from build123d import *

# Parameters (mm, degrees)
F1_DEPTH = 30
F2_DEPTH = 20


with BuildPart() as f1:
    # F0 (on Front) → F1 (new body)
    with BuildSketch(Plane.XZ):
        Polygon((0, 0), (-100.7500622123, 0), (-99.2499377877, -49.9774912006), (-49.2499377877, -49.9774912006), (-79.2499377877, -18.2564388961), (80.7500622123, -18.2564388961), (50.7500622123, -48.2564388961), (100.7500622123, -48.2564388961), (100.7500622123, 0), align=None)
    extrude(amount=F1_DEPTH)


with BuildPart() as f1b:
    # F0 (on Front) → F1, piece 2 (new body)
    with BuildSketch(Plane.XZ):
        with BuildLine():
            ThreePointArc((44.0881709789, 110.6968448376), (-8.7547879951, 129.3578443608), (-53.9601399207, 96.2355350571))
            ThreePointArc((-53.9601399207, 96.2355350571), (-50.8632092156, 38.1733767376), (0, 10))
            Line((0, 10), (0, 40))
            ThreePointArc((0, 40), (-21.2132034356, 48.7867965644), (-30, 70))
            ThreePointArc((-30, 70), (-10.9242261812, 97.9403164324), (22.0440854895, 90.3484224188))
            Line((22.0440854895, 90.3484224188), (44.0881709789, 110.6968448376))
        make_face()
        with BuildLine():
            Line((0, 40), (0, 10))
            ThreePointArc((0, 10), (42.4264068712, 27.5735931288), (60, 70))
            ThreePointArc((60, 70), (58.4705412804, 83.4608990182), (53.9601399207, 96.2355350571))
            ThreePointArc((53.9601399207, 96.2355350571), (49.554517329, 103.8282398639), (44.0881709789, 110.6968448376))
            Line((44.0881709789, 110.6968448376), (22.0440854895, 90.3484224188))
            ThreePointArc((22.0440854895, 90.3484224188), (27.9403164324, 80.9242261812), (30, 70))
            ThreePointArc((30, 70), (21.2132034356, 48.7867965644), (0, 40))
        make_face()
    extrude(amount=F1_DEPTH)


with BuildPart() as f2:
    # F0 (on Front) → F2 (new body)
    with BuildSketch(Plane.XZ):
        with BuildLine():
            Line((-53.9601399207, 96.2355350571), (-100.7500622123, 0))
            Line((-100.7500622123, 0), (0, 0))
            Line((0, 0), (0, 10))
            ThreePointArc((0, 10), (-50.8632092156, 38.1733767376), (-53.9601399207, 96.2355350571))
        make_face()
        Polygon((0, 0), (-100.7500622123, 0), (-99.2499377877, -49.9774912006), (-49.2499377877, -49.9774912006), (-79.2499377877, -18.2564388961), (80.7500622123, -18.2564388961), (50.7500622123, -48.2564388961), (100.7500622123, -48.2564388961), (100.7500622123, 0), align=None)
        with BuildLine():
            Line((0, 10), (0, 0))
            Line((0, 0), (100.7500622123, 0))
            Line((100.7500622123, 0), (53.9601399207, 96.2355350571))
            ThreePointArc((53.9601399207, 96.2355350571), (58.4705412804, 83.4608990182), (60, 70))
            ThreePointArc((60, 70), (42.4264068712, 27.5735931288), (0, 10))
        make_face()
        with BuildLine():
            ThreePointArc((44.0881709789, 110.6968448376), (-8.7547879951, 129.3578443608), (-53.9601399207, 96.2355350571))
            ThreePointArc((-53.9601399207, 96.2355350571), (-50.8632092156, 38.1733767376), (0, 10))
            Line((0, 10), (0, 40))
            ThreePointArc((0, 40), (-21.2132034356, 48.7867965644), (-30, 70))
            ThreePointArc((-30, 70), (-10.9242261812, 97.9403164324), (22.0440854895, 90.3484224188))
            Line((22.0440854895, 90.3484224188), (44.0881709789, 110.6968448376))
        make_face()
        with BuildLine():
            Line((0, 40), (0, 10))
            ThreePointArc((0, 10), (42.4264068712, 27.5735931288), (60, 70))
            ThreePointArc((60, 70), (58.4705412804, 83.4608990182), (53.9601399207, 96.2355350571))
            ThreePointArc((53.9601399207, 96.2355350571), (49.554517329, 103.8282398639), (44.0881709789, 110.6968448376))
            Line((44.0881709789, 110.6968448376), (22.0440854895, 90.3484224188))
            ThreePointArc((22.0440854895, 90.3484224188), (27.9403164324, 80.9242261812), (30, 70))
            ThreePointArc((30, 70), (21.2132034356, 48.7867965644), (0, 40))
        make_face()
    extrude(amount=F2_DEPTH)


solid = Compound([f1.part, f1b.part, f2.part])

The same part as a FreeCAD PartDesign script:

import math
import FreeCAD as App
import Part
import Sketcher

V = App.Vector
Q = App.Units.Quantity

doc = App.newDocument("Part")
body = doc.addObject("PartDesign::Body", "Body")

sketch1 = body.newObject("Sketcher::SketchObject", "Sketch")
sketch1.AttachmentSupport = (doc.getObject("XZ_Plane"), [""])
sketch1.MapMode = "FlatFace"
sketch1.addGeometry([
    Part.LineSegment(V(-100.750062, 0, 0), V(-99.249938, -49.977491, 0)),
    Part.LineSegment(V(-99.249938, -49.977491, 0), V(-49.249938, -49.977491, 0)),
    Part.LineSegment(V(-49.249938, -49.977491, 0), V(-79.249938, -18.256439, 0)),
    Part.LineSegment(V(-79.249938, -18.256439, 0), V(80.750062, -18.256439, 0)),
    Part.LineSegment(V(80.750062, -18.256439, 0), V(50.750062, -48.256439, 0)),
    Part.LineSegment(V(50.750062, -48.256439, 0), V(100.750062, -48.256439, 0)),
    Part.LineSegment(V(100.750062, -48.256439, 0), V(100.750062, 0, 0)),
    Part.LineSegment(V(100.750062, 0, 0), V(-100.750062, 0, 0)),
], False)
sketch1.addConstraint([
    Sketcher.Constraint("Coincident", 0, 2, 1, 1),
    Sketcher.Constraint("Coincident", 1, 2, 2, 1),
    Sketcher.Constraint("Coincident", 2, 2, 3, 1),
    Sketcher.Constraint("Coincident", 3, 2, 4, 1),
    Sketcher.Constraint("Coincident", 4, 2, 5, 1),
    Sketcher.Constraint("Coincident", 5, 2, 6, 1),
    Sketcher.Constraint("Coincident", 6, 2, 7, 1),
    Sketcher.Constraint("Coincident", 7, 2, 0, 1),
    Sketcher.Constraint("Horizontal", 1),
    Sketcher.Constraint("Horizontal", 3),
    Sketcher.Constraint("Horizontal", 5),
    Sketcher.Constraint("Vertical", 6),
    Sketcher.Constraint("Horizontal", 7),
    Sketcher.Constraint("Symmetric", 6, 2, 7, 2, -1, 1),
    Sketcher.Constraint("Equal", 1, 5),
    Sketcher.Constraint("DistanceX", 1, 1, 1, 2, Q("50 mm")),
    Sketcher.Constraint("DistanceX", 3, 1, 3, 2, Q("160 mm")),
    Sketcher.Constraint("Angle", 4, Q("-135 deg")),
    Sketcher.Constraint("Distance", 0, Q("50 mm")),
    Sketcher.Constraint("DistanceX", 0, 2, 2, 2, Q("20 mm")),
    Sketcher.Constraint("DistanceX", 4, 2, 3, 2, Q("30 mm")),
    Sketcher.Constraint("DistanceY", 6, 1, 6, 2, Q("48.256439 mm")),
    Sketcher.Constraint("Distance", 2, Q("43.660339 mm")),
])
pad1 = body.newObject("PartDesign::Pad", "Pad")
pad1.Profile = sketch1
pad1.Length = 30
body2 = doc.addObject("PartDesign::Body", "Body001")

sketch2 = body2.newObject("Sketcher::SketchObject", "Sketch001")
sketch2.AttachmentSupport = (doc.getObject("XZ_Plane001"), [""])
sketch2.MapMode = "FlatFace"
sketch2.addGeometry([
    Part.ArcOfCircle(Part.Circle(V(0, 70, 0), V(0, 0, 1), 60), math.radians(42.70944), math.radians(154.07088)),
    Part.ArcOfCircle(Part.Circle(V(0, 70, 0), V(0, 0, 1), 60), math.radians(154.07088), math.radians(360)),
    Part.ArcOfCircle(Part.Circle(V(0, 70, 0), V(0, 0, 1), 60), math.radians(0), math.radians(25.92912)),
    Part.ArcOfCircle(Part.Circle(V(0, 70, 0), V(0, 0, 1), 60), math.radians(25.92912), math.radians(42.70944)),
    Part.ArcOfCircle(Part.Circle(V(0, 70, 0), V(0, 0, 1), 30), math.radians(42.70944), math.radians(270)),
    Part.ArcOfCircle(Part.Circle(V(0, 70, 0), V(0, 0, 1), 30), math.radians(-90), math.radians(42.70944)),
], False)
sketch2.addConstraint([
    Sketcher.Constraint("Tangent", 0, 2, 1, 1),
    Sketcher.Constraint("Tangent", 1, 2, 2, 1),
    Sketcher.Constraint("Tangent", 2, 2, 3, 1),
    Sketcher.Constraint("Tangent", 3, 2, 0, 1),
    Sketcher.Constraint("Tangent", 4, 1, 5, 2),
    Sketcher.Constraint("Coincident", 5, 1, 4, 2),
    Sketcher.Constraint("Coincident", 4, 3, 0, 3),
    Sketcher.Constraint("Equal", 0, 1),
    Sketcher.Constraint("Symmetric", 0, 2, 2, 2, -2),
    Sketcher.Constraint("PointOnObject", 5, 1, -2),
    Sketcher.Constraint("Horizontal", 5, 3, 1, 2),
    Sketcher.Constraint("Radius", 0, Q("60 mm")),
    Sketcher.Constraint("Radius", 4, Q("30 mm")),
    Sketcher.Constraint("DistanceY", -1, 1, 0, 3, Q("70 mm")),
    Sketcher.Constraint("DistanceX", 0, 2, -1, 1, Q("53.96014 mm")),
    Sketcher.Constraint("DistanceX", -1, 1, 3, 2, Q("44.088171 mm")),
    Sketcher.Constraint("DistanceX", -1, 1, 4, 1, Q("22.044085 mm")),
])
pad2 = body2.newObject("PartDesign::Pad", "Pad001")
pad2.Profile = sketch2
pad2.Length = 30
body3 = doc.addObject("PartDesign::Body", "Body002")

sketch3 = body3.newObject("Sketcher::SketchObject", "Sketch002")
sketch3.AttachmentSupport = (doc.getObject("XZ_Plane002"), [""])
sketch3.MapMode = "FlatFace"
sketch3.addGeometry([
    Part.LineSegment(V(-53.96014, 96.235535, 0), V(-100.750062, 0, 0)),
    Part.LineSegment(V(-100.750062, 0, 0), V(-99.249938, -49.977491, 0)),
    Part.LineSegment(V(-99.249938, -49.977491, 0), V(-49.249938, -49.977491, 0)),
    Part.LineSegment(V(-49.249938, -49.977491, 0), V(-79.249938, -18.256439, 0)),
    Part.LineSegment(V(-79.249938, -18.256439, 0), V(80.750062, -18.256439, 0)),
    Part.LineSegment(V(80.750062, -18.256439, 0), V(50.750062, -48.256439, 0)),
    Part.LineSegment(V(50.750062, -48.256439, 0), V(100.750062, -48.256439, 0)),
    Part.LineSegment(V(100.750062, -48.256439, 0), V(100.750062, 0, 0)),
    Part.LineSegment(V(100.750062, 0, 0), V(53.96014, 96.235535, 0)),
    Part.ArcOfCircle(Part.Circle(V(0, 70, 0), V(0, 0, 1), 60), math.radians(25.92912), math.radians(42.70944)),
    Part.ArcOfCircle(Part.Circle(V(0, 70, 0), V(0, 0, 1), 60), math.radians(42.70944), math.radians(154.07088)),
    Part.ArcOfCircle(Part.Circle(V(0, 70, 0), V(0, 0, 1), 30), math.radians(42.70944), math.radians(270)),
    Part.ArcOfCircle(Part.Circle(V(0, 70, 0), V(0, 0, 1), 30), math.radians(-90), math.radians(42.70944)),
], False)
sketch3.addConstraint([
    Sketcher.Constraint("Coincident", 0, 2, 1, 1),
    Sketcher.Constraint("Coincident", 1, 2, 2, 1),
    Sketcher.Constraint("Coincident", 2, 2, 3, 1),
    Sketcher.Constraint("Coincident", 3, 2, 4, 1),
    Sketcher.Constraint("Coincident", 4, 2, 5, 1),
    Sketcher.Constraint("Coincident", 5, 2, 6, 1),
    Sketcher.Constraint("Coincident", 6, 2, 7, 1),
    Sketcher.Constraint("Coincident", 7, 2, 8, 1),
    Sketcher.Constraint("Tangent", 8, 2, 9, 1),
    Sketcher.Constraint("Tangent", 9, 2, 10, 1),
    Sketcher.Constraint("Tangent", 10, 2, 0, 1),
    Sketcher.Constraint("Tangent", 11, 1, 12, 2),
    Sketcher.Constraint("Coincident", 12, 1, 11, 2),
    Sketcher.Constraint("Horizontal", 2),
    Sketcher.Constraint("Horizontal", 4),
    Sketcher.Constraint("Horizontal", 6),
    Sketcher.Constraint("Vertical", 7),
    Sketcher.Constraint("Coincident", 11, 3, 9, 3),
    Sketcher.Constraint("Equal", 9, 10),
    Sketcher.Constraint("Symmetric", 0, 2, 7, 2, -1, 1),
    Sketcher.Constraint("Symmetric", 8, 2, 10, 2, -2),
    Sketcher.Constraint("PointOnObject", 12, 1, -2),
    Sketcher.Constraint("Equal", 2, 6),
    Sketcher.Constraint("Radius", 9, Q("60 mm")),
    Sketcher.Constraint("Radius", 11, Q("30 mm")),
    Sketcher.Constraint("DistanceX", 2, 1, 2, 2, Q("50 mm")),
    Sketcher.Constraint("DistanceX", 4, 1, 4, 2, Q("160 mm")),
    Sketcher.Constraint("Angle", 5, Q("-135 deg")),
    Sketcher.Constraint("Distance", 1, Q("50 mm")),
    Sketcher.Constraint("DistanceY", -1, 1, 9, 3, Q("70 mm")),
    Sketcher.Constraint("DistanceX", 1, 2, 3, 2, Q("20 mm")),
    Sketcher.Constraint("DistanceX", 5, 2, 4, 2, Q("30 mm")),
    Sketcher.Constraint("DistanceY", 7, 1, 7, 2, Q("48.256439 mm")),
    Sketcher.Constraint("Distance", 0, Q("107.00736 mm")),
    Sketcher.Constraint("DistanceX", -1, 1, 9, 2, Q("44.088171 mm")),
    Sketcher.Constraint("DistanceX", -1, 1, 11, 1, Q("22.044085 mm")),
])
pad3 = body3.newObject("PartDesign::Pad", "Pad002")
pad3.Profile = sketch3
pad3.Length = 20

doc.recompute()
